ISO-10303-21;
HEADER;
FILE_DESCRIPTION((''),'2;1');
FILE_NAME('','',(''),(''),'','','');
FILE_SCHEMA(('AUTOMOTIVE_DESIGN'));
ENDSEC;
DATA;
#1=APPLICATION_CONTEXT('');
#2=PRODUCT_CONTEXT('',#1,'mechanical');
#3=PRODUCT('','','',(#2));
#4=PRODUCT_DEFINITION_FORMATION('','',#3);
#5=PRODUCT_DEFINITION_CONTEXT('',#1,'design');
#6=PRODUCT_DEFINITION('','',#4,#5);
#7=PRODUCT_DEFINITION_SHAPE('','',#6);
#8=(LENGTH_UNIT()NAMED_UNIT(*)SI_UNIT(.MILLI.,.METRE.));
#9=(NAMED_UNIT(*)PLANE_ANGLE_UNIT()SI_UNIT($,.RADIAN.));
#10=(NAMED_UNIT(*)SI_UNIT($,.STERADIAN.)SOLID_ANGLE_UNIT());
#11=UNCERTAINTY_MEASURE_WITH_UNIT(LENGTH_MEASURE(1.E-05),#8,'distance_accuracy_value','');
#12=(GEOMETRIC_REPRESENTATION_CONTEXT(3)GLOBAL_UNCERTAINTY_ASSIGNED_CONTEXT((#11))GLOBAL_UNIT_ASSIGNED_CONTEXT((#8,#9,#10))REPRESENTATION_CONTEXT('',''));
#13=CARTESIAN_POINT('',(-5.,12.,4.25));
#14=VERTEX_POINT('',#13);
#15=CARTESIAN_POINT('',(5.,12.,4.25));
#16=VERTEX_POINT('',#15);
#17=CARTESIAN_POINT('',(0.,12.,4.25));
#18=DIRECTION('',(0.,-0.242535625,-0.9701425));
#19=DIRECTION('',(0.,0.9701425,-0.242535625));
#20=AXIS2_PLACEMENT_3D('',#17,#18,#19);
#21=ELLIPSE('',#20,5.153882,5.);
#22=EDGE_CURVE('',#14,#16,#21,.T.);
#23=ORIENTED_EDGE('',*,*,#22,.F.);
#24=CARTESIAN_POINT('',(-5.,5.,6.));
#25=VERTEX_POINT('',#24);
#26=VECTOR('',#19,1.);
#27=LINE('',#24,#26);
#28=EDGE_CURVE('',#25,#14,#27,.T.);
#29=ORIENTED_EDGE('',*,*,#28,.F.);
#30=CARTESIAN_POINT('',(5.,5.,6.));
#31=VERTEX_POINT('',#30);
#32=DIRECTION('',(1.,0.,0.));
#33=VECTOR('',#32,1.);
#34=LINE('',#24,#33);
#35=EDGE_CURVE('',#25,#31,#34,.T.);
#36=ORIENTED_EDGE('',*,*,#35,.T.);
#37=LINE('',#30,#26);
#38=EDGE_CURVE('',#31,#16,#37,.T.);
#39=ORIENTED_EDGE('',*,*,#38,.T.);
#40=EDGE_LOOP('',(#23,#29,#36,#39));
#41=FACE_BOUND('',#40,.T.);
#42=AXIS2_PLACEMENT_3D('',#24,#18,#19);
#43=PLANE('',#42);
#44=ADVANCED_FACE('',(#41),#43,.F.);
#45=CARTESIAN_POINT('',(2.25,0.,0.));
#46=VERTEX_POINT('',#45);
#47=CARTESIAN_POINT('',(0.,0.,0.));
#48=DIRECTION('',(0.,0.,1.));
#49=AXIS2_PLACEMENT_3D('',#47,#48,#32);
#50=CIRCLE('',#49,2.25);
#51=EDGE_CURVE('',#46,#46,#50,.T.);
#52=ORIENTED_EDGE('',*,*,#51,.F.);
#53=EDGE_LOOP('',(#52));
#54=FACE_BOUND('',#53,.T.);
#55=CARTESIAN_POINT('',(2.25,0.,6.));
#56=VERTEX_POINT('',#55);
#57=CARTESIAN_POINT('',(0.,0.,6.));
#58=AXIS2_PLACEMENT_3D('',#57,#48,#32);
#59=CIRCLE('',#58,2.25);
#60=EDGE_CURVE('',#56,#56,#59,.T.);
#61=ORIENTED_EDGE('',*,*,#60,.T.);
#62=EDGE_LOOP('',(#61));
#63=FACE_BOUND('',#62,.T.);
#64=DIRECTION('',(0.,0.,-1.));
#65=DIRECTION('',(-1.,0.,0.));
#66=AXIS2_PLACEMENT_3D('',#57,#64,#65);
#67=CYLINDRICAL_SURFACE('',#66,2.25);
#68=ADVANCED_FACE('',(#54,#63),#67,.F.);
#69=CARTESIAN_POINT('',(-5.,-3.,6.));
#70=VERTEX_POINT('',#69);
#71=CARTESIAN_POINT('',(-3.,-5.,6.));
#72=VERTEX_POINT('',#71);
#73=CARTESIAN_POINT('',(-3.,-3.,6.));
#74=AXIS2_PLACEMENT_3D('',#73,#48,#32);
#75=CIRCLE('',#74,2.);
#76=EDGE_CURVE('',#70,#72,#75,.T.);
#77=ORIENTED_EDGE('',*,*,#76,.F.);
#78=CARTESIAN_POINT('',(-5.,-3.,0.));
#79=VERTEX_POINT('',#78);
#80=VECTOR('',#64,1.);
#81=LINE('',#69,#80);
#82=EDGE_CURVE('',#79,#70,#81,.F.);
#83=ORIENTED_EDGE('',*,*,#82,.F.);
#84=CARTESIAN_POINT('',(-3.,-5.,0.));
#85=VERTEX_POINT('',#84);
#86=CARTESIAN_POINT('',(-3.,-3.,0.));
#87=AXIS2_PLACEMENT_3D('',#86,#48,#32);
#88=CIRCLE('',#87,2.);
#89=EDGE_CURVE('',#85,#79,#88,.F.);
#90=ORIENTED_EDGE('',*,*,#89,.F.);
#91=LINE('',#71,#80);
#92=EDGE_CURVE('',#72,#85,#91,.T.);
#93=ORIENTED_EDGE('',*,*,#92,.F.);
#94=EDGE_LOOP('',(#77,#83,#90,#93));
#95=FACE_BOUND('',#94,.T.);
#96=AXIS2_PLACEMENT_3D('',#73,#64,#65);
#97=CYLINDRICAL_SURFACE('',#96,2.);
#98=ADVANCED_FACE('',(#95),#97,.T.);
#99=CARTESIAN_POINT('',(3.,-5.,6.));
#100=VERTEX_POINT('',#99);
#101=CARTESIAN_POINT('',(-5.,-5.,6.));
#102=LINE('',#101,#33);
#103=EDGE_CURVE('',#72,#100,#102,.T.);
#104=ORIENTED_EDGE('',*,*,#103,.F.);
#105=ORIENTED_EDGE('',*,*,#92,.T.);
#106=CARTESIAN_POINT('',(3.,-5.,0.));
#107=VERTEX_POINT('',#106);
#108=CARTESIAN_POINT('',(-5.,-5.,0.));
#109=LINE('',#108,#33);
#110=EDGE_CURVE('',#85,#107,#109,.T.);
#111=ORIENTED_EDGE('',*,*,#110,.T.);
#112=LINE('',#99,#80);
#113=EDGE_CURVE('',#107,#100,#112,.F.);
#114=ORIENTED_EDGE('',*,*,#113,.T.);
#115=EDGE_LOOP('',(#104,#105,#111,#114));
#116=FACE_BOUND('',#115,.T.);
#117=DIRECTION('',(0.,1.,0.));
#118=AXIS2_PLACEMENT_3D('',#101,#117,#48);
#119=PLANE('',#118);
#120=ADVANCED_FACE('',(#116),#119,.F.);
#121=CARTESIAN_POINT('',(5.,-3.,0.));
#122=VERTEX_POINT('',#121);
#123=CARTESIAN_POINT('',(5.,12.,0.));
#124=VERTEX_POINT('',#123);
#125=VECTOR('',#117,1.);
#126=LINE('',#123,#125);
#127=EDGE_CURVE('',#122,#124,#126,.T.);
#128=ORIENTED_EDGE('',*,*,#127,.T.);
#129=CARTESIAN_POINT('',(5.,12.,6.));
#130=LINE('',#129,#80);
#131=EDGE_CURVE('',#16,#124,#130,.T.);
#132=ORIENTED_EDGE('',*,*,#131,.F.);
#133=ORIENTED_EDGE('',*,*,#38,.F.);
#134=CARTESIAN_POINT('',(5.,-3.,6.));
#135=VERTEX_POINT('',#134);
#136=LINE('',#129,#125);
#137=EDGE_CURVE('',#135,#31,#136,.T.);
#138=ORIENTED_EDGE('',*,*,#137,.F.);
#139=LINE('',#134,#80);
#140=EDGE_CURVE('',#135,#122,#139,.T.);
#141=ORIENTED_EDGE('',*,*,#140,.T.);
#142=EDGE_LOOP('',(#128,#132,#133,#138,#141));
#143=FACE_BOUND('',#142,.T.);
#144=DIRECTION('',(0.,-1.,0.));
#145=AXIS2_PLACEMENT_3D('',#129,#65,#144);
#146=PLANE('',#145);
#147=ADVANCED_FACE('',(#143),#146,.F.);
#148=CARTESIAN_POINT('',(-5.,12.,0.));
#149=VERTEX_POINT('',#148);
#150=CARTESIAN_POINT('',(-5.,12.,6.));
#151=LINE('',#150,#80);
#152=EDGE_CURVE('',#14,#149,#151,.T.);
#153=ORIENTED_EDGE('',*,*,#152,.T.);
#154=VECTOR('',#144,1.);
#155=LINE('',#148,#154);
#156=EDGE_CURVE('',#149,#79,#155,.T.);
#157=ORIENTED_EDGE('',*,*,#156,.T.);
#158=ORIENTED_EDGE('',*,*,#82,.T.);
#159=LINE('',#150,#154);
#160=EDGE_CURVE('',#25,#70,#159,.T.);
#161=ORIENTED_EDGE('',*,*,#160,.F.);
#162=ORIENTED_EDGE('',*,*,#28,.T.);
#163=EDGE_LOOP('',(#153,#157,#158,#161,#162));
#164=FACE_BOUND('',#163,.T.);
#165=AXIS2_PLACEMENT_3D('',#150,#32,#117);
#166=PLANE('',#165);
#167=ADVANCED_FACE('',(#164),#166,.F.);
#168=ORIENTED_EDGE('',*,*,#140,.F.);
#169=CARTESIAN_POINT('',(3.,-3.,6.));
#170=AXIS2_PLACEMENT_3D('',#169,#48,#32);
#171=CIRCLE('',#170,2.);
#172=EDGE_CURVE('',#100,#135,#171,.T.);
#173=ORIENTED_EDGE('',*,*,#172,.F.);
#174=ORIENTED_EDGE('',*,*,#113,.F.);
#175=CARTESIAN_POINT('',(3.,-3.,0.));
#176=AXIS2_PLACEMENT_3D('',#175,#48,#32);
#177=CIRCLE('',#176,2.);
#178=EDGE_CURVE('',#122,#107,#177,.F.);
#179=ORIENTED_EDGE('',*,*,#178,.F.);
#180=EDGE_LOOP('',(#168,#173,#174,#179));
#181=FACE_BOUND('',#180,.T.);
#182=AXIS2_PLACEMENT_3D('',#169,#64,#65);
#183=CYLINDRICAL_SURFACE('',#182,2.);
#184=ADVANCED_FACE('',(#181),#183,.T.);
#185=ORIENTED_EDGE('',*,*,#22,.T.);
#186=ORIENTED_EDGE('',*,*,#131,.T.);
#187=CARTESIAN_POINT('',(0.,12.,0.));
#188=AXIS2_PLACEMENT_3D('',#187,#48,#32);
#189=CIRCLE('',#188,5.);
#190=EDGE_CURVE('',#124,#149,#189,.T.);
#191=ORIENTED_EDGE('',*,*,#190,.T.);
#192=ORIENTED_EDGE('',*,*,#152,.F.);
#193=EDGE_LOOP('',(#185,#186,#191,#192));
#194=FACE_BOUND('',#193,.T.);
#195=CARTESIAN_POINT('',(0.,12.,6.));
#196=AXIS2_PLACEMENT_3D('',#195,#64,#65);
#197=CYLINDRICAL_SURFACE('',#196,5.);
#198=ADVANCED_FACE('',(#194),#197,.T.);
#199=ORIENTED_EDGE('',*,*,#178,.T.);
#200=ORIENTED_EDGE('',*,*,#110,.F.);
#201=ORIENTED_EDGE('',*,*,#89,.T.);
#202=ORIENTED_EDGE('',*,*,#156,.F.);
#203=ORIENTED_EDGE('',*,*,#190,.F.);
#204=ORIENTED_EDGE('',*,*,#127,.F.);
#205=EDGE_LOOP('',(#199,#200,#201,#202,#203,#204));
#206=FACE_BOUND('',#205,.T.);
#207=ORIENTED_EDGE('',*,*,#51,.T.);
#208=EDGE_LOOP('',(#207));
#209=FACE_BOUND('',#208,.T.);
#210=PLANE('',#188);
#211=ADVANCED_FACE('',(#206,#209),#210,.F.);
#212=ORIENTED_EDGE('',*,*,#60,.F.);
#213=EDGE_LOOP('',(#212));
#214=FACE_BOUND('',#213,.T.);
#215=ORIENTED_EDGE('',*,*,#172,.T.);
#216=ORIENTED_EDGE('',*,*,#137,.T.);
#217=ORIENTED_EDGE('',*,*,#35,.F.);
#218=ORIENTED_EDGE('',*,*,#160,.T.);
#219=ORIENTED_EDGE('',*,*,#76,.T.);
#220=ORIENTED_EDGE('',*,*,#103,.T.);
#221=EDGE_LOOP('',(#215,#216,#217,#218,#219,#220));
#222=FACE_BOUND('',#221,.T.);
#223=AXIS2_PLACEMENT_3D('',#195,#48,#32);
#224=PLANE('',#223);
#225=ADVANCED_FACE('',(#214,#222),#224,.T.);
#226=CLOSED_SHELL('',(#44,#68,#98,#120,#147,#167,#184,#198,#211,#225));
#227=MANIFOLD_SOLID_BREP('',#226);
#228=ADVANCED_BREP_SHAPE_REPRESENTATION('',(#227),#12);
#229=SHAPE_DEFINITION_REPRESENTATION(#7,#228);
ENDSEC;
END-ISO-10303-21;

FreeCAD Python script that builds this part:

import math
import FreeCAD as App
import Part
import Sketcher


def edges_at(feature, points):
    """Names of the edges that pass closest to the given points."""
    edges = feature.Shape.Edges
    near = lambda p: min(range(len(edges)), key=lambda i: edges[i].distToShape(Part.Vertex(*p))[0])
    return sorted({f"Edge{near(p) + 1}" for p in points})

doc = App.newDocument("Part")
body = doc.addObject("PartDesign::Body", "Body")

# Sketch on XY plane
sketch1 = body.newObject("Sketcher::SketchObject", "Sketch")
sketch1.AttachmentSupport = (doc.getObject("XY_Plane"), [""])
sketch1.MapMode = "FlatFace"
sketch1.addGeometry(Part.LineSegment(App.Vector(-5, 12, 0), App.Vector(-5, -5, 0)), False)
sketch1.addGeometry(Part.LineSegment(App.Vector(-5, -5, 0), App.Vector(5, -5, 0)), False)
sketch1.addGeometry(Part.LineSegment(App.Vector(5, -5, 0), App.Vector(5, 12, 0)), False)
sketch1.addGeometry(Part.ArcOfCircle(Part.Circle(App.Vector(0, 12, 0), App.Vector(0, 0, 1), 5), math.radians(0), math.radians(180)), False)
sketch1.addGeometry(Part.Circle(App.Vector(0, 0, 0), App.Vector(0, 0, 1), 2.25), False)
sketch1.addConstraint(Sketcher.Constraint("Coincident", 0, 2, 1, 1))
sketch1.addConstraint(Sketcher.Constraint("Coincident", 1, 2, 2, 1))
sketch1.addConstraint(Sketcher.Constraint("Tangent", 2, 2, 3, 1))
sketch1.addConstraint(Sketcher.Constraint("Tangent", 3, 2, 0, 1))
sketch1.addConstraint(Sketcher.Constraint("Vertical", 0))
sketch1.addConstraint(Sketcher.Constraint("Horizontal", 1))
sketch1.addConstraint(Sketcher.Constraint("Vertical", 2))
sketch1.addConstraint(Sketcher.Constraint("Coincident", 4, 3, -1, 1))
sketch1.addConstraint(Sketcher.Constraint("PointOnObject", 3, 3, -2))
sketch1.addConstraint(Sketcher.Constraint("Radius", 3, 5.0))
sketch1.addConstraint(Sketcher.Constraint("Diameter", 4, 4.5))
sketch1.addConstraint(Sketcher.Constraint("DistanceY", 0, 2, 0, 1, 17.0))
sketch1.addConstraint(Sketcher.Constraint("DistanceY", -1, 1, 3, 3, 12.0))
pad1 = body.newObject("PartDesign::Pad", "Pad")
pad1.Profile = sketch1
pad1.Length = 6

# Sketch on YZ plane
sketch2 = body.newObject("Sketcher::SketchObject", "Sketch001")
sketch2.AttachmentSupport = (doc.getObject("YZ_Plane"), [""])
sketch2.MapMode = "FlatFace"
sketch2.AttachmentOffset = App.Placement(App.Vector(0, 0, 5), App.Rotation())
sketch2.addGeometry(Part.LineSegment(App.Vector(5, 6, 0), App.Vector(17, 3, 0)), False)
sketch2.addGeometry(Part.LineSegment(App.Vector(17, 3, 0), App.Vector(17, 6, 0)), False)
sketch2.addGeometry(Part.LineSegment(App.Vector(17, 6, 0), App.Vector(5, 6, 0)), False)
sketch2.addConstraint(Sketcher.Constraint("Coincident", 0, 2, 1, 1))
sketch2.addConstraint(Sketcher.Constraint("Coincident", 1, 2, 2, 1))
sketch2.addConstraint(Sketcher.Constraint("Coincident", 2, 2, 0, 1))
sketch2.addConstraint(Sketcher.Constraint("Vertical", 1))
sketch2.addConstraint(Sketcher.Constraint("Horizontal", 2))
sketch2.addConstraint(Sketcher.Constraint("DistanceX", 2, 2, 2, 1, 12.0))
sketch2.addConstraint(Sketcher.Constraint("DistanceY", 1, 1, 1, 2, 3.0))
sketch2.addConstraint(Sketcher.Constraint("DistanceX", -1, 1, 0, 2, 17.0))
sketch2.addConstraint(Sketcher.Constraint("DistanceY", -1, 1, 0, 2, 3.0))
pocket1 = body.newObject("PartDesign::Pocket", "Pocket")
pocket1.Profile = sketch2
pocket1.Type = "ThroughAll"
doc.recompute()

fillet = body.newObject("PartDesign::Fillet", "Fillet")
fillet.Base = (pocket1, edges_at(pocket1, [(5, -5, 3), (-5, -5, 3)]))
fillet.Radius = 2

doc.recompute()
